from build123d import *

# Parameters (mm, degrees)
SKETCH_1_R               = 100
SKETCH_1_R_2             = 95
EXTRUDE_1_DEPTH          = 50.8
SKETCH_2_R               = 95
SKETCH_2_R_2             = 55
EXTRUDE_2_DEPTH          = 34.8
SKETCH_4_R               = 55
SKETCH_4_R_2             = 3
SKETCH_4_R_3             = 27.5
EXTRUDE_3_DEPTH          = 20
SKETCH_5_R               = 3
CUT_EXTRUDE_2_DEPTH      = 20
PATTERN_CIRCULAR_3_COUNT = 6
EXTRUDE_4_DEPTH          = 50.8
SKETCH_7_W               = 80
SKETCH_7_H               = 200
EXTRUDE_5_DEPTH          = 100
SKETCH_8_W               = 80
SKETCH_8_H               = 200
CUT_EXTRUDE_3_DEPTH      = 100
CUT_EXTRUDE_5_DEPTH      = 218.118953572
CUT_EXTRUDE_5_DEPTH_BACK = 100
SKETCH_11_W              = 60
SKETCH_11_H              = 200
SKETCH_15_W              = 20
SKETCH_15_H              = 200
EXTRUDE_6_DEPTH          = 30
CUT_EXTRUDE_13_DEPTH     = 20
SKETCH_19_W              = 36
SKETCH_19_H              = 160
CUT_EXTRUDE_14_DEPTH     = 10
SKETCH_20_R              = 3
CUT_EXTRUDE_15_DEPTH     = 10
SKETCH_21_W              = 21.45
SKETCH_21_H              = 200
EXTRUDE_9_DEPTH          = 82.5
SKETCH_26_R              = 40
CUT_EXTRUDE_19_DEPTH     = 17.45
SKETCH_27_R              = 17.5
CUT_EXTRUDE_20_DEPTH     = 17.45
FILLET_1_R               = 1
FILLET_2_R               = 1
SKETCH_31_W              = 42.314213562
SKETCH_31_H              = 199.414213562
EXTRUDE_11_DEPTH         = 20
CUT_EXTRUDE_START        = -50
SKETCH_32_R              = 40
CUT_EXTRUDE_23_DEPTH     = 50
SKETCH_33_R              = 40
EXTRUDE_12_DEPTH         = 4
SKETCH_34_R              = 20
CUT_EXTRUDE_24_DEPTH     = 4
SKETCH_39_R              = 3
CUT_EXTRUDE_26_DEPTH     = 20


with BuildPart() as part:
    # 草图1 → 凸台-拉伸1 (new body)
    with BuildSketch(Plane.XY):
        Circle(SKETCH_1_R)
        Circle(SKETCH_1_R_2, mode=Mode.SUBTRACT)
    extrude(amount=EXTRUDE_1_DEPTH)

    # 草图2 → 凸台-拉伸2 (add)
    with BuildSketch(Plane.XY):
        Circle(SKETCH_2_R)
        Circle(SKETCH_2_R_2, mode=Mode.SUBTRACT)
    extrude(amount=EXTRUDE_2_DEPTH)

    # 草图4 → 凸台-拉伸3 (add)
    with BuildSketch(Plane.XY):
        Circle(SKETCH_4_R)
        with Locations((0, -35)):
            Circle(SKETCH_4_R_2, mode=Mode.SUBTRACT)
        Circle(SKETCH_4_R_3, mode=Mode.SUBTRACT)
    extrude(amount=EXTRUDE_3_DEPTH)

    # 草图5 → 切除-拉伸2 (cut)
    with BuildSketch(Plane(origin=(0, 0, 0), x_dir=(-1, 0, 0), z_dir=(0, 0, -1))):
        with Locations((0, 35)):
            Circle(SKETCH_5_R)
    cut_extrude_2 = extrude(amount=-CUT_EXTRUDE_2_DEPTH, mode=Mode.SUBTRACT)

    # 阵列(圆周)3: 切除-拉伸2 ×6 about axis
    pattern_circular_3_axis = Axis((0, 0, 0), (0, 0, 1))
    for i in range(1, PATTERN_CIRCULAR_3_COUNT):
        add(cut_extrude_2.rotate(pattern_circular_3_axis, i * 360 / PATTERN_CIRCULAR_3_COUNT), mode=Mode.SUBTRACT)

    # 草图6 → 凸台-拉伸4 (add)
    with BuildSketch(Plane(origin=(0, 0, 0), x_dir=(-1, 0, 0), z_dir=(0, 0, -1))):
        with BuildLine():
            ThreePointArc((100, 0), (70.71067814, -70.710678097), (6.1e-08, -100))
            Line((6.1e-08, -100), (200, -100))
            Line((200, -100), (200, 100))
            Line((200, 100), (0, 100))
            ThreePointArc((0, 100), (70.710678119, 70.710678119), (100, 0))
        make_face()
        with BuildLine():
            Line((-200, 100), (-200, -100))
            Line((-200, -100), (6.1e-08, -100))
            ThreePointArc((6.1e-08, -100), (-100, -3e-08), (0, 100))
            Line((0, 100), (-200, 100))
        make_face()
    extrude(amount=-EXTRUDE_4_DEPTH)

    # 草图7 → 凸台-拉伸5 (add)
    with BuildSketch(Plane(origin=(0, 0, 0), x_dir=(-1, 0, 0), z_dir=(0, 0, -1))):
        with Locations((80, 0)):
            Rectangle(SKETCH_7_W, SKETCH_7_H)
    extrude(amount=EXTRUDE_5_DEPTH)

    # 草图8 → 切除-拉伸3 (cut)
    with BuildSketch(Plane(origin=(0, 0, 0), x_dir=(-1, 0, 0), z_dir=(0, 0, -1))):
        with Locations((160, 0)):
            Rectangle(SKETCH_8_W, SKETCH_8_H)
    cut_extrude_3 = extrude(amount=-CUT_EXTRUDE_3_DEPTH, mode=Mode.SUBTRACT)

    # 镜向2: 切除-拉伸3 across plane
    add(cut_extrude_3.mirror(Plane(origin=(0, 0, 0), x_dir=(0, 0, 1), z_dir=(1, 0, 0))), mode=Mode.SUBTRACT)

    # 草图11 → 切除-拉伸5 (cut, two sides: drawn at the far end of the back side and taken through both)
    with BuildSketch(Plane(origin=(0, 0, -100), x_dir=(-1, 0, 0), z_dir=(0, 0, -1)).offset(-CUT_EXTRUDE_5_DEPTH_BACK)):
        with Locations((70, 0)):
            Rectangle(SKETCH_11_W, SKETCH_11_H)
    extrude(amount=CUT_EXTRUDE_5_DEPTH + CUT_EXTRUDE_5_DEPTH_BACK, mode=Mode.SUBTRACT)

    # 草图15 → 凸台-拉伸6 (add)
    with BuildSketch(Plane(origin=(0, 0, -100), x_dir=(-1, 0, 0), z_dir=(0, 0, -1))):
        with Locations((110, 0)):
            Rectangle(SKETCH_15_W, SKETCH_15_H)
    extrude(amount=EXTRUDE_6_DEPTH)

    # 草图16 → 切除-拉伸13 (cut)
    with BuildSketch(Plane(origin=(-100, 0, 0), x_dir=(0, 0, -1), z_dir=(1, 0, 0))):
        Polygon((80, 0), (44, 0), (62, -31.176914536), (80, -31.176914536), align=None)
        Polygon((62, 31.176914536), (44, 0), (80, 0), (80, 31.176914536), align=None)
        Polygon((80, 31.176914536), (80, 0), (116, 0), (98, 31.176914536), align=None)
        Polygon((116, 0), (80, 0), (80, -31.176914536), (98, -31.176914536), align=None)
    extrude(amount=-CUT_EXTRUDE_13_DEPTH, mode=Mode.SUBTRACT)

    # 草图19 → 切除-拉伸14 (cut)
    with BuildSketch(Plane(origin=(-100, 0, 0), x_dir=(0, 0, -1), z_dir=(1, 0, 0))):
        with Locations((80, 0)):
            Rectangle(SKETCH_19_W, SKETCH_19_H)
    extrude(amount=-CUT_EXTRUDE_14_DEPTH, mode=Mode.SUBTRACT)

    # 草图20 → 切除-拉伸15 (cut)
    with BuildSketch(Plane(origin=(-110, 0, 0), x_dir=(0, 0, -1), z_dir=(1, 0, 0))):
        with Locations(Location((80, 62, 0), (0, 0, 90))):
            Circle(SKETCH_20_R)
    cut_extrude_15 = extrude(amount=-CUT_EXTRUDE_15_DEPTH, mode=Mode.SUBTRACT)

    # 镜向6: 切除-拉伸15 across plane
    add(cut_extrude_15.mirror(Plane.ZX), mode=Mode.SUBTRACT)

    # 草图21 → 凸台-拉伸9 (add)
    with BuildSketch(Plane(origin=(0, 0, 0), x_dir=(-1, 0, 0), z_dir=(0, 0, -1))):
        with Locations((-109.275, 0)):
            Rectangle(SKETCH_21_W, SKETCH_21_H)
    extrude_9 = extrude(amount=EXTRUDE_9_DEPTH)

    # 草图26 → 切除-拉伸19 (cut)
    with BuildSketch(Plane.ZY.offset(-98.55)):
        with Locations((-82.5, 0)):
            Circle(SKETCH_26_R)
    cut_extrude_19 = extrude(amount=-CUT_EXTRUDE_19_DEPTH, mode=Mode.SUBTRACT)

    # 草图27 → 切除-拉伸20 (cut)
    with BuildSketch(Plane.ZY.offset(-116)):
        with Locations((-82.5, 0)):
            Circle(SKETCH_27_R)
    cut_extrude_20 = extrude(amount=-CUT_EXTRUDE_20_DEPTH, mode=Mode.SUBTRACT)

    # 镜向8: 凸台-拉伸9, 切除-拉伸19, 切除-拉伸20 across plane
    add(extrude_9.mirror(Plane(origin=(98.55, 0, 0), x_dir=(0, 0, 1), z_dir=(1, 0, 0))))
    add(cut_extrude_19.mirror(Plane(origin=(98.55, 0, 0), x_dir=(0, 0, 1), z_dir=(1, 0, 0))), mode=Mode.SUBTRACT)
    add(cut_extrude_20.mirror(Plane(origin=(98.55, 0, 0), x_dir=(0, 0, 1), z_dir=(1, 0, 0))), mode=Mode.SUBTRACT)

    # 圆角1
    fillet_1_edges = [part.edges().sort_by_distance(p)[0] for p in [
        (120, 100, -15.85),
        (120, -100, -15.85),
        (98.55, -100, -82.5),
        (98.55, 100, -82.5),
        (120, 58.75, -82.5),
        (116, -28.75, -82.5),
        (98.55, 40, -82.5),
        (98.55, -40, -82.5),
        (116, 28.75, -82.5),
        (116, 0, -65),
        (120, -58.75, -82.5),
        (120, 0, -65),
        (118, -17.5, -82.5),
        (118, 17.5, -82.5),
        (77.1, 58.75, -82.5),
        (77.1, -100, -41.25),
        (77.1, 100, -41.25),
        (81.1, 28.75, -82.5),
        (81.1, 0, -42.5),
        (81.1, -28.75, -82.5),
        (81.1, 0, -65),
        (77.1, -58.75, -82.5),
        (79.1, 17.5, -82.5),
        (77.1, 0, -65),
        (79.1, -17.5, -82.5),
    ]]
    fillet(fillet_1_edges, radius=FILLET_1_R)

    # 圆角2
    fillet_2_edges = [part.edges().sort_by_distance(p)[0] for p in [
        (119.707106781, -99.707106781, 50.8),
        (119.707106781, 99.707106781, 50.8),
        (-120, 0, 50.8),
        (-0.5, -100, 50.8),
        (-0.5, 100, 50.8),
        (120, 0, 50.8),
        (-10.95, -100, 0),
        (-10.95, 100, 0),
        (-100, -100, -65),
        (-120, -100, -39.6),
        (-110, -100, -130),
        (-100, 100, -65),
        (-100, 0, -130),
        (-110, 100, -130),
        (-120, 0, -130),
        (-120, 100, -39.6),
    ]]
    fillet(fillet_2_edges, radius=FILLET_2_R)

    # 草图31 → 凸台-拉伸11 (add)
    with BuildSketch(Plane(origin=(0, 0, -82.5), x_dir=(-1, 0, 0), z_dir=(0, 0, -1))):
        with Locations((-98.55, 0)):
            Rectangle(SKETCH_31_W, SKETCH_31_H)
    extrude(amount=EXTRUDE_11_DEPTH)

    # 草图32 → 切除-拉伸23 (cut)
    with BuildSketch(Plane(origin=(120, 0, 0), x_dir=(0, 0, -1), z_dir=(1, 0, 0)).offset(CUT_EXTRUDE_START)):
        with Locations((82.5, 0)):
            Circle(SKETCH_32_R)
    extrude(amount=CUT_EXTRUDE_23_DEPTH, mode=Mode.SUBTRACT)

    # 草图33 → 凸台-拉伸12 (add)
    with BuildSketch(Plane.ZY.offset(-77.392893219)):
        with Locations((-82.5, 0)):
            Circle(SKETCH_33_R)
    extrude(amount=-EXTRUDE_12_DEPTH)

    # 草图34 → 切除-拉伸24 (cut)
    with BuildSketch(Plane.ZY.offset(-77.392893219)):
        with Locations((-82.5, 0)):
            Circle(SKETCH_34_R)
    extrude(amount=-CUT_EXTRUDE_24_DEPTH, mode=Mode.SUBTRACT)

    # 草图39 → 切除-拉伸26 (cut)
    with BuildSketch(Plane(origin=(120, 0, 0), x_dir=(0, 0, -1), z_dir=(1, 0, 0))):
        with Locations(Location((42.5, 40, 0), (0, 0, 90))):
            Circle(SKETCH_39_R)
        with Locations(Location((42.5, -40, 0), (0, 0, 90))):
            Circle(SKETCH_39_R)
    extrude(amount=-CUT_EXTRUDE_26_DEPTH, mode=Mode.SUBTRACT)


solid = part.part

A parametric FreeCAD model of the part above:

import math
import FreeCAD as App
import Part
import Sketcher

V = App.Vector
Q = App.Units.Quantity


def edges_at(feature, points):
    """Names of the edges that pass closest to the given points."""
    edges = feature.Shape.Edges
    near = lambda p: min(range(len(edges)), key=lambda i: edges[i].distToShape(Part.Vertex(*p))[0])
    return sorted({f"Edge{near(p) + 1}" for p in points})


def add_polygon(sketch, points):
    """Adds a closed chain of lines whose ends are joined by coincident constraints."""
    first, n = sketch.GeometryCount, len(points)
    for a, b in zip(points, points[1:] + points[:1]):
        sketch.addGeometry(Part.LineSegment(App.Vector(*a, 0), App.Vector(*b, 0)), False)
    for i in range(n):
        sketch.addConstraint(Sketcher.Constraint("Coincident", first + i, 2, first + (i + 1) % n, 1))

doc = App.newDocument("Part")
params = doc.addObject("Spreadsheet::Sheet", "Params")
for row, (alias, value) in enumerate([
    ("sketch1_diameter", "200 mm"),
    ("sketch1_diameter2", "190 mm"),
    ("pad1_length", "50.8 mm"),
    ("sketch2_diameter", "190 mm"),
    ("sketch2_diameter2", "110 mm"),
    ("pad2_length", "34.8 mm"),
    ("sketch3_diameter", "110 mm"),
    ("sketch3_diameter2", "6 mm"),
    ("sketch3_diameter3", "55 mm"),
    ("pad3_length", "20 mm"),
    ("sketch4_diameter", "6 mm"),
    ("pocket1_length", "20 mm"),
    ("sketch5_radius", "100 mm"),
    ("pad4_length", "50.8 mm"),
    ("sketch6_width", "80 mm"),
    ("sketch6_height", "200 mm"),
    ("pad5_length", "100 mm"),
    ("sketch7_width", "80 mm"),
    ("sketch7_height", "200 mm"),
    ("pocket2_length", "100 mm"),
    ("sketch8_width", "60 mm"),
    ("sketch8_height", "200 mm"),
    ("pocket3_length", "218.118954 mm"),
    ("pocket3_length2", "100 mm"),
    ("sketch9_width", "20 mm"),
    ("sketch9_height", "200 mm"),
    ("pad6_length", "30 mm"),
    ("sketch10_height", "36 mm"),
    ("sketch10_length", "36 mm"),
    ("pocket4_length", "20 mm"),
    ("sketch11_width", "160 mm"),
    ("sketch11_height", "36 mm"),
    ("pocket5_length", "10 mm"),
    ("sketch12_diameter", "6 mm"),
    ("pocket6_length", "10 mm"),
    ("sketch13_height", "200 mm"),
    ("sketch13_width", "21.45 mm"),
    ("pad7_length", "82.5 mm"),
    ("sketch14_diameter", "80 mm"),
    ("pocket7_length", "17.45 mm"),
    ("sketch15_diameter", "35 mm"),
    ("pocket8_length", "17.45 mm"),
    ("fillet_radius", "1 mm"),
    ("fillet2_radius", "1 mm"),
    ("pad8_length", "20 mm"),
    ("sketch17_diameter", "80 mm"),
    ("pocket9_length", "50 mm"),
    ("sketch18_diameter", "80 mm"),
    ("pad9_length", "4 mm"),
    ("sketch19_diameter", "40 mm"),
    ("pocket10_length", "4 mm"),
    ("sketch20_diameter", "6 mm"),
    ("pocket11_length", "20 mm"),
], start=1):
    params.set(f"A{row}", alias)
    params.set(f"B{row}", "=" + value)
    params.setAlias(f"B{row}", alias)

body = doc.addObject("PartDesign::Body", "Body")

sketch1 = body.newObject("Sketcher::SketchObject", "Sketch")
sketch1.AttachmentSupport = (doc.getObject("XY_Plane"), [""])
sketch1.MapMode = "FlatFace"
sketch1.addGeometry([
    Part.Circle(V(0, 0, 0), V(0, 0, 1), 100),
    Part.Circle(V(0, 0, 0), V(0, 0, 1), 95),
], False)
sketch1.addConstraint([
    Sketcher.Constraint("Coincident", 0, 3, -1, 1),
    Sketcher.Constraint("Coincident", 1, 3, -1, 1),
    Sketcher.Constraint("Diameter", 0, 200.0),
    Sketcher.Constraint("Diameter", 1, 190.0),
])
sketch1.setExpression("Constraints[2]", "Params.sketch1_diameter")
sketch1.setExpression("Constraints[3]", "Params.sketch1_diameter2")
pad1 = body.newObject("PartDesign::Pad", "Pad")
pad1.Profile = sketch1
pad1.setExpression("Length", "Params.pad1_length")

sketch2 = body.newObject("Sketcher::SketchObject", "Sketch001")
sketch2.AttachmentSupport = (doc.getObject("XY_Plane"), [""])
sketch2.MapMode = "FlatFace"
sketch2.addGeometry([
    Part.Circle(V(0, 0, 0), V(0, 0, 1), 95),
    Part.Circle(V(0, 0, 0), V(0, 0, 1), 55),
], False)
sketch2.addConstraint([
    Sketcher.Constraint("Coincident", 0, 3, -1, 1),
    Sketcher.Constraint("Coincident", 1, 3, -1, 1),
    Sketcher.Constraint("Diameter", 0, 190.0),
    Sketcher.Constraint("Diameter", 1, 110.0),
])
sketch2.setExpression("Constraints[2]", "Params.sketch2_diameter")
sketch2.setExpression("Constraints[3]", "Params.sketch2_diameter2")
pad2 = body.newObject("PartDesign::Pad", "Pad001")
pad2.Profile = sketch2
pad2.setExpression("Length", "Params.pad2_length")

sketch3 = body.newObject("Sketcher::SketchObject", "Sketch002")
sketch3.AttachmentSupport = (doc.getObject("XY_Plane"), [""])
sketch3.MapMode = "FlatFace"
sketch3.addGeometry([
    Part.Circle(V(0, 0, 0), V(0, 0, 1), 55),
    Part.Circle(V(0, -35, 0), V(0, 0, 1), 3),
    Part.Circle(V(0, 0, 0), V(0, 0, 1), 27.5),
], False)
sketch3.addConstraint([
    Sketcher.Constraint("Coincident", 0, 3, -1, 1),
    Sketcher.Constraint("Coincident", 2, 3, -1, 1),
    Sketcher.Constraint("PointOnObject", 1, 3, -2),
    Sketcher.Constraint("Diameter", 0, 110.0),
    Sketcher.Constraint("Diameter", 1, 6.0),
    Sketcher.Constraint("Diameter", 2, 55.0),
    Sketcher.Constraint("DistanceY", 1, 3, -1, 1, 35.0),
])
sketch3.setExpression("Constraints[3]", "Params.sketch3_diameter")
sketch3.setExpression("Constraints[4]", "Params.sketch3_diameter2")
sketch3.setExpression("Constraints[5]", "Params.sketch3_diameter3")
pad3 = body.newObject("PartDesign::Pad", "Pad002")
pad3.Profile = sketch3
pad3.setExpression("Length", "Params.pad3_length")

sketch4 = body.newObject("Sketcher::SketchObject", "Sketch003")
sketch4.AttachmentSupport = (doc.getObject("XY_Plane"), [""])
sketch4.MapMode = "FlatFace"
sketch4.addGeometry(Part.Circle(V(0, 35, 0), V(0, 0, 1), 3), False)
sketch4.addConstraint([
    Sketcher.Constraint("PointOnObject", 0, 3, -2),
    Sketcher.Constraint("Diameter", 0, 6.0),
    Sketcher.Constraint("DistanceY", -1, 1, 0, 3, 35.0),
])
sketch4.setExpression("Constraints[1]", "Params.sketch4_diameter")
pocket1 = body.newObject("PartDesign::Pocket", "Pocket")
pocket1.Profile = sketch4
pocket1.setExpression("Length", "Params.pocket1_length")
pocket1.Reversed = True
doc.recompute()

polarpattern = body.newObject("PartDesign::PolarPattern", "PolarPattern")
polarpattern.Originals = [pocket1]
polarpattern.Axis = (doc.getObject("Z_Axis"), [""])
polarpattern.Angle = 360
polarpattern.Occurrences = 6
body.Tip = polarpattern

sketch5 = body.newObject("Sketcher::SketchObject", "Sketch004")
sketch5.AttachmentSupport = (doc.getObject("XY_Plane"), [""])
sketch5.MapMode = "FlatFace"
sketch5.addGeometry([
    Part.ArcOfCircle(Part.Circle(V(0, 0, 0), V(0, 0, 1), 100), math.radians(-180), math.radians(-90)),
    Part.LineSegment(V(0, -100, 0), V(-200, -100, 0)),
    Part.LineSegment(V(-200, -100, 0), V(-200, 100, 0)),
    Part.LineSegment(V(-200, 100, 0), V(0, 100, 0)),
    Part.ArcOfCircle(Part.Circle(V(0, 0, 0), V(0, 0, 1), 100), math.radians(90), math.radians(180)),
    Part.LineSegment(V(200, 100, 0), V(200, -100, 0)),
    Part.LineSegment(V(200, -100, 0), V(0, -100, 0)),
    Part.ArcOfCircle(Part.Circle(V(0, 0, 0), V(0, 0, 1), 100), math.radians(-90), math.radians(90)),
    Part.LineSegment(V(0, 100, 0), V(200, 100, 0)),
], False)
sketch5.addConstraint([
    Sketcher.Constraint("Tangent", 0, 2, 1, 1),
    Sketcher.Constraint("Coincident", 1, 2, 2, 1),
    Sketcher.Constraint("Coincident", 2, 2, 3, 1),
    Sketcher.Constraint("Tangent", 3, 2, 4, 1),
    Sketcher.Constraint("Tangent", 4, 2, 0, 1),
    Sketcher.Constraint("Coincident", 5, 2, 6, 1),
    Sketcher.Constraint("Tangent", 6, 2, 7, 1),
    Sketcher.Constraint("Tangent", 7, 2, 8, 1),
    Sketcher.Constraint("Coincident", 8, 2, 5, 1),
    Sketcher.Constraint("Horizontal", 1),
    Sketcher.Constraint("Vertical", 2),
    Sketcher.Constraint("Horizontal", 3),
    Sketcher.Constraint("Vertical", 5),
    Sketcher.Constraint("Horizontal", 6),
    Sketcher.Constraint("Horizontal", 8),
    Sketcher.Constraint("Coincident", 0, 3, -1, 1),
    Sketcher.Constraint("Coincident", 7, 3, -1, 1),
    Sketcher.Constraint("Coincident", 7, 2, 3, 2),
    Sketcher.Constraint("PointOnObject", 4, 2, -1),
    Sketcher.Constraint("Equal", 3, 6),
    Sketcher.Constraint("Equal", 8, 2),
    Sketcher.Constraint("Radius", 0, 100.0),
])
sketch5.setExpression("Constraints[21]", "Params.sketch5_radius")
pad4 = body.newObject("PartDesign::Pad", "Pad003")
pad4.Profile = sketch5
pad4.setExpression("Length", "Params.pad4_length")

sketch6 = body.newObject("Sketcher::SketchObject", "Sketch005")
sketch6.AttachmentSupport = (doc.getObject("XY_Plane"), [""])
sketch6.MapMode = "FlatFace"
add_polygon(sketch6, [(-40, 100), (-40, -100), (-120, -100), (-120, 100)])
sketch6.addConstraint([
    Sketcher.Constraint("Vertical", 0),
    Sketcher.Constraint("Horizontal", 1),
    Sketcher.Constraint("Vertical", 2),
    Sketcher.Constraint("Horizontal", 3),
    Sketcher.Constraint("DistanceX", 1, 2, 1, 1, 80.0),
    Sketcher.Constraint("DistanceY", 0, 2, 0, 1, 200.0),
    Sketcher.Constraint("DistanceX", 0, 2, -1, 1, 40.0),
    Sketcher.Constraint("DistanceY", 0, 2, -1, 1, 100.0),
])
sketch6.setExpression("Constraints[8]", "Params.sketch6_width")
sketch6.setExpression("Constraints[9]", "Params.sketch6_height")
pad5 = body.newObject("PartDesign::Pad", "Pad004")
pad5.Profile = sketch6
pad5.setExpression("Length", "Params.pad5_length")
pad5.Reversed = True

sketch7 = body.newObject("Sketcher::SketchObject", "Sketch006")
sketch7.AttachmentSupport = (doc.getObject("XY_Plane"), [""])
sketch7.MapMode = "FlatFace"
add_polygon(sketch7, [(-120, 100), (-120, -100), (-200, -100), (-200, 100)])
sketch7.addConstraint([
    Sketcher.Constraint("Vertical", 0),
    Sketcher.Constraint("Horizontal", 1),
    Sketcher.Constraint("Vertical", 2),
    Sketcher.Constraint("Horizontal", 3),
    Sketcher.Constraint("DistanceX", 1, 2, 1, 1, 80.0),
    Sketcher.Constraint("DistanceY", 0, 2, 0, 1, 200.0),
    Sketcher.Constraint("DistanceX", 0, 2, -1, 1, 120.0),
    Sketcher.Constraint("DistanceY", 0, 2, -1, 1, 100.0),
])
sketch7.setExpression("Constraints[8]", "Params.sketch7_width")
sketch7.setExpression("Constraints[9]", "Params.sketch7_height")
pocket2 = body.newObject("PartDesign::Pocket", "Pocket001")
pocket2.Profile = sketch7
pocket2.setExpression("Length", "Params.pocket2_length")
pocket2.Reversed = True
doc.recompute()

mirrored = body.newObject("PartDesign::Mirrored", "Mirrored")
mirrored.Originals = [pocket2]
mirrored.MirrorPlane = (doc.getObject("YZ_Plane"), [""])
body.Tip = mirrored

sketch8 = body.newObject("Sketcher::SketchObject", "Sketch007")
sketch8.AttachmentSupport = (doc.getObject("XY_Plane"), [""])
sketch8.MapMode = "FlatFace"
sketch8.AttachmentOffset = App.Placement(V(0, 0, -100), App.Rotation())
add_polygon(sketch8, [(-40, 100), (-40, -100), (-100, -100), (-100, 100)])
sketch8.addConstraint([
    Sketcher.Constraint("Vertical", 0),
    Sketcher.Constraint("Horizontal", 1),
    Sketcher.Constraint("Vertical", 2),
    Sketcher.Constraint("Horizontal", 3),
    Sketcher.Constraint("DistanceX", 1, 2, 1, 1, 60.0),
    Sketcher.Constraint("DistanceY", 0, 2, 0, 1, 200.0),
    Sketcher.Constraint("DistanceX", 0, 2, -1, 1, 40.0),
    Sketcher.Constraint("DistanceY", 0, 2, -1, 1, 100.0),
])
sketch8.setExpression("Constraints[8]", "Params.sketch8_width")
sketch8.setExpression("Constraints[9]", "Params.sketch8_height")
pocket3 = body.newObject("PartDesign::Pocket", "Pocket002")
pocket3.Profile = sketch8
pocket3.Type = "TwoLengths"
pocket3.setExpression("Length", "Params.pocket3_length")
pocket3.setExpression("Length2", "Params.pocket3_length2")

sketch9 = body.newObject("Sketcher::SketchObject", "Sketch008")
sketch9.AttachmentSupport = (doc.getObject("XY_Plane"), [""])
sketch9.MapMode = "FlatFace"
sketch9.AttachmentOffset = App.Placement(V(0, 0, -100), App.Rotation())
add_polygon(sketch9, [(-100, 100), (-100, -100), (-120, -100), (-120, 100)])
sketch9.addConstraint([
    Sketcher.Constraint("Vertical", 0),
    Sketcher.Constraint("Horizontal", 1),
    Sketcher.Constraint("Vertical", 2),
    Sketcher.Constraint("Horizontal", 3),
    Sketcher.Constraint("DistanceX", 1, 2, 1, 1, 20.0),
    Sketcher.Constraint("DistanceY", 0, 2, 0, 1, 200.0),
    Sketcher.Constraint("DistanceX", 0, 2, -1, 1, 100.0),
    Sketcher.Constraint("DistanceY", 0, 2, -1, 1, 100.0),
])
sketch9.setExpression("Constraints[8]", "Params.sketch9_width")
sketch9.setExpression("Constraints[9]", "Params.sketch9_height")
pad6 = body.newObject("PartDesign::Pad", "Pad005")
pad6.Profile = sketch9
pad6.setExpression("Length", "Params.pad6_length")
pad6.Reversed = True

sketch10 = body.newObject("Sketcher::SketchObject", "Sketch009")
sketch10.AttachmentSupport = (doc.getObject("YZ_Plane"), [""])
sketch10.MapMode = "FlatFace"
sketch10.AttachmentOffset = App.Placement(V(0, 0, -100), App.Rotation())
add_polygon(sketch10, [(0, -44), (-31, -62), (-31, -98), (0, -116), (31, -98), (31, -62)])
sketch10.addConstraint([
    Sketcher.Constraint("Vertical", 1),
    Sketcher.Constraint("Vertical", 4),
    Sketcher.Constraint("Symmetric", 1, 2, 3, 2, -2),
    Sketcher.Constraint("PointOnObject", 2, 2, -2),
    Sketcher.Constraint("PointOnObject", 5, 2, -2),
    Sketcher.Constraint("Parallel", 0, 3),
    Sketcher.Constraint("Parallel", 2, 5),
    Sketcher.Constraint("DistanceY", 1, 2, 1, 1, 36.0),
    Sketcher.Constraint("Angle", 0, Q("-150 deg")),
    Sketcher.Constraint("Distance", 0, 36.0),
    Sketcher.Constraint("DistanceY", 0, 2, -1, 1, 62.0),
])
sketch10.setExpression("Constraints[13]", "Params.sketch10_height")
sketch10.setExpression("Constraints[15]", "Params.sketch10_length")
pocket4 = body.newObject("PartDesign::Pocket", "Pocket003")
pocket4.Profile = sketch10
pocket4.setExpression("Length", "Params.pocket4_length")

sketch11 = body.newObject("Sketcher::SketchObject", "Sketch010")
sketch11.AttachmentSupport = (doc.getObject("YZ_Plane"), [""])
sketch11.MapMode = "FlatFace"
sketch11.AttachmentOffset = App.Placement(V(0, 0, -100), App.Rotation())
add_polygon(sketch11, [(80, -62), (-80, -62), (-80, -98), (80, -98)])
sketch11.addConstraint([
    Sketcher.Constraint("Horizontal", 0),
    Sketcher.Constraint("Vertical", 1),
    Sketcher.Constraint("Horizontal", 2),
    Sketcher.Constraint("Vertical", 3),
    Sketcher.Constraint("DistanceX", 0, 2, 0, 1, 160.0),
    Sketcher.Constraint("DistanceY", 1, 2, 1, 1, 36.0),
    Sketcher.Constraint("DistanceX", 0, 2, -1, 1, 80.0),
    Sketcher.Constraint("DistanceY", 0, 2, -1, 1, 62.0),
])
sketch11.setExpression("Constraints[8]", "Params.sketch11_width")
sketch11.setExpression("Constraints[9]", "Params.sketch11_height")
pocket5 = body.newObject("PartDesign::Pocket", "Pocket004")
pocket5.Profile = sketch11
pocket5.setExpression("Length", "Params.pocket5_length")

sketch12 = body.newObject("Sketcher::SketchObject", "Sketch011")
sketch12.AttachmentSupport = (doc.getObject("YZ_Plane"), [""])
sketch12.MapMode = "FlatFace"
sketch12.AttachmentOffset = App.Placement(V(0, 0, -110), App.Rotation())
sketch12.addGeometry(Part.Circle(V(62, -80, 0), V(0, 0, 1), 3), False)
sketch12.addConstraint([
    Sketcher.Constraint("Diameter", 0, 6.0),
    Sketcher.Constraint("DistanceX", -1, 1, 0, 3, 62.0),
    Sketcher.Constraint("DistanceY", 0, 3, -1, 1, 80.0),
])
sketch12.setExpression("Constraints[0]", "Params.sketch12_diameter")
pocket6 = body.newObject("PartDesign::Pocket", "Pocket005")
pocket6.Profile = sketch12
pocket6.setExpression("Length", "Params.pocket6_length")
doc.recompute()

mirrored2 = body.newObject("PartDesign::Mirrored", "Mirrored001")
mirrored2.Originals = [pocket6]
mirrored2.MirrorPlane = (doc.getObject("XZ_Plane"), [""])
body.Tip = mirrored2

sketch13 = body.newObject("Sketcher::SketchObject", "Sketch012")
sketch13.AttachmentSupport = (doc.getObject("XY_Plane"), [""])
sketch13.MapMode = "FlatFace"
add_polygon(sketch13, [(120, 100), (120, -100), (99, -100), (99, 100)])
sketch13.addConstraint([
    Sketcher.Constraint("Vertical", 0),
    Sketcher.Constraint("Horizontal", 1),
    Sketcher.Constraint("Vertical", 2),
    Sketcher.Constraint("Horizontal", 3),
    Sketcher.Constraint("DistanceY", 0, 2, 0, 1, 200.0),
    Sketcher.Constraint("DistanceX", -1, 1, 0, 2, 120.0),
    Sketcher.Constraint("DistanceY", 0, 2, -1, 1, 100.0),
    Sketcher.Constraint("DistanceX", 1, 2, 1, 1, 21.45),
])
sketch13.setExpression("Constraints[8]", "Params.sketch13_height")
sketch13.setExpression("Constraints[11]", "Params.sketch13_width")
pad7 = body.newObject("PartDesign::Pad", "Pad006")
pad7.Profile = sketch13
pad7.setExpression("Length", "Params.pad7_length")
pad7.Reversed = True

sketch14 = body.newObject("Sketcher::SketchObject", "Sketch013")
sketch14.AttachmentSupport = (doc.getObject("YZ_Plane"), [""])
sketch14.MapMode = "FlatFace"
sketch14.AttachmentOffset = App.Placement(V(0, 0, 98.55), App.Rotation())
sketch14.addGeometry(Part.Circle(V(0, -82, 0), V(0, 0, 1), 40), False)
sketch14.addConstraint([
    Sketcher.Constraint("PointOnObject", 0, 3, -2),
    Sketcher.Constraint("Diameter", 0, 80.0),
    Sketcher.Constraint("DistanceY", 0, 3, -1, 1, 82.5),
])
sketch14.setExpression("Constraints[1]", "Params.sketch14_diameter")
pocket7 = body.newObject("PartDesign::Pocket", "Pocket006")
pocket7.Profile = sketch14
pocket7.setExpression("Length", "Params.pocket7_length")
pocket7.Reversed = True

sketch15 = body.newObject("Sketcher::SketchObject", "Sketch014")
sketch15.AttachmentSupport = (doc.getObject("YZ_Plane"), [""])
sketch15.MapMode = "FlatFace"
sketch15.AttachmentOffset = App.Placement(V(0, 0, 116), App.Rotation())
sketch15.addGeometry(Part.Circle(V(0, -82, 0), V(0, 0, 1), 18), False)
sketch15.addConstraint([
    Sketcher.Constraint("PointOnObject", 0, 3, -2),
    Sketcher.Constraint("Diameter", 0, 35.0),
    Sketcher.Constraint("DistanceY", 0, 3, -1, 1, 82.5),
])
sketch15.setExpression("Constraints[1]", "Params.sketch15_diameter")
pocket8 = body.newObject("PartDesign::Pocket", "Pocket007")
pocket8.Profile = sketch15
pocket8.setExpression("Length", "Params.pocket8_length")
pocket8.Reversed = True
doc.recompute()

datumplane = body.newObject("PartDesign::Plane", "DatumPlane")
datumplane.AttachmentSupport = (doc.getObject("YZ_Plane"), [""])
datumplane.MapMode = "FlatFace"
datumplane.AttachmentOffset = App.Placement(V(0, 0, 98.55), App.Rotation())
mirrored3 = body.newObject("PartDesign::Mirrored", "Mirrored002")
mirrored3.Originals = [pad7, pocket7, pocket8]
mirrored3.MirrorPlane = (datumplane, [""])
body.Tip = mirrored3
doc.recompute()

fillet = body.newObject("PartDesign::Fillet", "Fillet")
fillet.Base = (mirrored3, edges_at(mirrored3, [
    (120, 100, -15.85),
    (120, -100, -15.85),
    (98.55, -100, -82.5),
    (98.55, 100, -82.5),
    (120, 58.75, -82.5),
    (116, -28.75, -82.5),
    (98.55, 40, -82.5),
    (98.55, -40, -82.5),
    (116, 28.75, -82.5),
    (116, 0, -65),
    (120, -58.75, -82.5),
    (120, 0, -65),
    (118, -17.5, -82.5),
    (118, 17.5, -82.5),
    (77.1, 58.75, -82.5),
    (77.1, -100, -41.25),
    (77.1, 100, -41.25),
    (81.1, 28.75, -82.5),
    (81.1, 0, -42.5),
    (81.1, -28.75, -82.5),
    (81.1, 0, -65),
    (77.1, -58.75, -82.5),
    (79.1, 17.5, -82.5),
    (77.1, 0, -65),
    (79.1, -17.5, -82.5),
]))
fillet.setExpression("Radius", "Params.fillet_radius")
doc.recompute()

fillet2 = body.newObject("PartDesign::Fillet", "Fillet001")
fillet2.Base = (fillet, edges_at(fillet, [
    (119.707, -99.707, 50.8),
    (119.707, 99.707, 50.8),
    (-120, 0, 50.8),
    (-0.5, -100, 50.8),
    (-0.5, 100, 50.8),
    (120, 0, 50.8),
    (-10.95, -100, 0),
    (-10.95, 100, 0),
    (-100, -100, -65),
    (-120, -100, -39.6),
    (-110, -100, -130),
    (-100, 100, -65),
    (-100, 0, -130),
    (-110, 100, -130),
    (-120, 0, -130),
    (-120, 100, -39.6),
]))
fillet2.setExpression("Radius", "Params.fillet2_radius")

sketch16 = body.newObject("Sketcher::SketchObject", "Sketch015")
sketch16.AttachmentSupport = (doc.getObject("XY_Plane"), [""])
sketch16.MapMode = "FlatFace"
sketch16.AttachmentOffset = App.Placement(V(0, 0, -82.5), App.Rotation())
add_polygon(sketch16, [(120, 100), (120, -100), (77, -100), (77, 100)])
sketch16.addConstraint([
    Sketcher.Constraint("Vertical", 0),
    Sketcher.Constraint("Horizontal", 1),
    Sketcher.Constraint("Vertical", 2),
    Sketcher.Constraint("Horizontal", 3),
    Sketcher.Constraint("DistanceX", 1, 2, 1, 1, 42.314214),
    Sketcher.Constraint("DistanceY", 0, 2, 0, 1, 199.414214),
    Sketcher.Constraint("DistanceX", -1, 1, 0, 2, 119.707107),
    Sketcher.Constraint("DistanceY", 0, 2, -1, 1, 99.707107),
])
pad8 = body.newObject("PartDesign::Pad", "Pad007")
pad8.Profile = sketch16
pad8.setExpression("Length", "Params.pad8_length")
pad8.Reversed = True

sketch17 = body.newObject("Sketcher::SketchObject", "Sketch016")
sketch17.AttachmentSupport = (doc.getObject("YZ_Plane"), [""])
sketch17.MapMode = "FlatFace"
sketch17.AttachmentOffset = App.Placement(V(0, 0, 70), App.Rotation())
sketch17.addGeometry(Part.Circle(V(0, -82, 0), V(0, 0, 1), 40), False)
sketch17.addConstraint([
    Sketcher.Constraint("PointOnObject", 0, 3, -2),
    Sketcher.Constraint("Diameter", 0, 80.0),
    Sketcher.Constraint("DistanceY", 0, 3, -1, 1, 82.5),
])
sketch17.setExpression("Constraints[1]", "Params.sketch17_diameter")
pocket9 = body.newObject("PartDesign::Pocket", "Pocket008")
pocket9.Profile = sketch17
pocket9.setExpression("Length", "Params.pocket9_length")
pocket9.Reversed = True

sketch18 = body.newObject("Sketcher::SketchObject", "Sketch017")
sketch18.AttachmentSupport = (doc.getObject("YZ_Plane"), [""])
sketch18.MapMode = "FlatFace"
sketch18.AttachmentOffset = App.Placement(V(0, 0, 77.392893), App.Rotation())
sketch18.addGeometry(Part.Circle(V(0, -82, 0), V(0, 0, 1), 40), False)
sketch18.addConstraint([
    Sketcher.Constraint("PointOnObject", 0, 3, -2),
    Sketcher.Constraint("Diameter", 0, 80.0),
    Sketcher.Constraint("DistanceY", 0, 3, -1, 1, 82.5),
])
sketch18.setExpression("Constraints[1]", "Params.sketch18_diameter")
pad9 = body.newObject("PartDesign::Pad", "Pad008")
pad9.Profile = sketch18
pad9.setExpression("Length", "Params.pad9_length")

sketch19 = body.newObject("Sketcher::SketchObject", "Sketch018")
sketch19.AttachmentSupport = (doc.getObject("YZ_Plane"), [""])
sketch19.MapMode = "FlatFace"
sketch19.AttachmentOffset = App.Placement(V(0, 0, 77.392893), App.Rotation())
sketch19.addGeometry(Part.Circle(V(0, -82, 0), V(0, 0, 1), 20), False)
sketch19.addConstraint([
    Sketcher.Constraint("PointOnObject", 0, 3, -2),
    Sketcher.Constraint("Diameter", 0, 40.0),
    Sketcher.Constraint("DistanceY", 0, 3, -1, 1, 82.5),
])
sketch19.setExpression("Constraints[1]", "Params.sketch19_diameter")
pocket10 = body.newObject("PartDesign::Pocket", "Pocket009")
pocket10.Profile = sketch19
pocket10.setExpression("Length", "Params.pocket10_length")
pocket10.Reversed = True

sketch20 = body.newObject("Sketcher::SketchObject", "Sketch019")
sketch20.AttachmentSupport = (doc.getObject("YZ_Plane"), [""])
sketch20.MapMode = "FlatFace"
sketch20.AttachmentOffset = App.Placement(V(0, 0, 120), App.Rotation())
sketch20.addGeometry([
    Part.Circle(V(40, -42.5, 0), V(0, 0, 1), 3),
    Part.Circle(V(-40, -42.5, 0), V(0, 0, 1), 3),
], False)
sketch20.addConstraint([
    Sketcher.Constraint("Equal", 0, 1),
    Sketcher.Constraint("Symmetric", 0, 3, 1, 3, -2),
    Sketcher.Constraint("Diameter", 0, 6.0),
    Sketcher.Constraint("DistanceX", -1, 1, 0, 3, 40.0),
    Sketcher.Constraint("DistanceY", 0, 3, -1, 1, 42.5),
])
sketch20.setExpression("Constraints[2]", "Params.sketch20_diameter")
pocket11 = body.newObject("PartDesign::Pocket", "Pocket010")
pocket11.Profile = sketch20
pocket11.setExpression("Length", "Params.pocket11_length")

doc.recompute()
